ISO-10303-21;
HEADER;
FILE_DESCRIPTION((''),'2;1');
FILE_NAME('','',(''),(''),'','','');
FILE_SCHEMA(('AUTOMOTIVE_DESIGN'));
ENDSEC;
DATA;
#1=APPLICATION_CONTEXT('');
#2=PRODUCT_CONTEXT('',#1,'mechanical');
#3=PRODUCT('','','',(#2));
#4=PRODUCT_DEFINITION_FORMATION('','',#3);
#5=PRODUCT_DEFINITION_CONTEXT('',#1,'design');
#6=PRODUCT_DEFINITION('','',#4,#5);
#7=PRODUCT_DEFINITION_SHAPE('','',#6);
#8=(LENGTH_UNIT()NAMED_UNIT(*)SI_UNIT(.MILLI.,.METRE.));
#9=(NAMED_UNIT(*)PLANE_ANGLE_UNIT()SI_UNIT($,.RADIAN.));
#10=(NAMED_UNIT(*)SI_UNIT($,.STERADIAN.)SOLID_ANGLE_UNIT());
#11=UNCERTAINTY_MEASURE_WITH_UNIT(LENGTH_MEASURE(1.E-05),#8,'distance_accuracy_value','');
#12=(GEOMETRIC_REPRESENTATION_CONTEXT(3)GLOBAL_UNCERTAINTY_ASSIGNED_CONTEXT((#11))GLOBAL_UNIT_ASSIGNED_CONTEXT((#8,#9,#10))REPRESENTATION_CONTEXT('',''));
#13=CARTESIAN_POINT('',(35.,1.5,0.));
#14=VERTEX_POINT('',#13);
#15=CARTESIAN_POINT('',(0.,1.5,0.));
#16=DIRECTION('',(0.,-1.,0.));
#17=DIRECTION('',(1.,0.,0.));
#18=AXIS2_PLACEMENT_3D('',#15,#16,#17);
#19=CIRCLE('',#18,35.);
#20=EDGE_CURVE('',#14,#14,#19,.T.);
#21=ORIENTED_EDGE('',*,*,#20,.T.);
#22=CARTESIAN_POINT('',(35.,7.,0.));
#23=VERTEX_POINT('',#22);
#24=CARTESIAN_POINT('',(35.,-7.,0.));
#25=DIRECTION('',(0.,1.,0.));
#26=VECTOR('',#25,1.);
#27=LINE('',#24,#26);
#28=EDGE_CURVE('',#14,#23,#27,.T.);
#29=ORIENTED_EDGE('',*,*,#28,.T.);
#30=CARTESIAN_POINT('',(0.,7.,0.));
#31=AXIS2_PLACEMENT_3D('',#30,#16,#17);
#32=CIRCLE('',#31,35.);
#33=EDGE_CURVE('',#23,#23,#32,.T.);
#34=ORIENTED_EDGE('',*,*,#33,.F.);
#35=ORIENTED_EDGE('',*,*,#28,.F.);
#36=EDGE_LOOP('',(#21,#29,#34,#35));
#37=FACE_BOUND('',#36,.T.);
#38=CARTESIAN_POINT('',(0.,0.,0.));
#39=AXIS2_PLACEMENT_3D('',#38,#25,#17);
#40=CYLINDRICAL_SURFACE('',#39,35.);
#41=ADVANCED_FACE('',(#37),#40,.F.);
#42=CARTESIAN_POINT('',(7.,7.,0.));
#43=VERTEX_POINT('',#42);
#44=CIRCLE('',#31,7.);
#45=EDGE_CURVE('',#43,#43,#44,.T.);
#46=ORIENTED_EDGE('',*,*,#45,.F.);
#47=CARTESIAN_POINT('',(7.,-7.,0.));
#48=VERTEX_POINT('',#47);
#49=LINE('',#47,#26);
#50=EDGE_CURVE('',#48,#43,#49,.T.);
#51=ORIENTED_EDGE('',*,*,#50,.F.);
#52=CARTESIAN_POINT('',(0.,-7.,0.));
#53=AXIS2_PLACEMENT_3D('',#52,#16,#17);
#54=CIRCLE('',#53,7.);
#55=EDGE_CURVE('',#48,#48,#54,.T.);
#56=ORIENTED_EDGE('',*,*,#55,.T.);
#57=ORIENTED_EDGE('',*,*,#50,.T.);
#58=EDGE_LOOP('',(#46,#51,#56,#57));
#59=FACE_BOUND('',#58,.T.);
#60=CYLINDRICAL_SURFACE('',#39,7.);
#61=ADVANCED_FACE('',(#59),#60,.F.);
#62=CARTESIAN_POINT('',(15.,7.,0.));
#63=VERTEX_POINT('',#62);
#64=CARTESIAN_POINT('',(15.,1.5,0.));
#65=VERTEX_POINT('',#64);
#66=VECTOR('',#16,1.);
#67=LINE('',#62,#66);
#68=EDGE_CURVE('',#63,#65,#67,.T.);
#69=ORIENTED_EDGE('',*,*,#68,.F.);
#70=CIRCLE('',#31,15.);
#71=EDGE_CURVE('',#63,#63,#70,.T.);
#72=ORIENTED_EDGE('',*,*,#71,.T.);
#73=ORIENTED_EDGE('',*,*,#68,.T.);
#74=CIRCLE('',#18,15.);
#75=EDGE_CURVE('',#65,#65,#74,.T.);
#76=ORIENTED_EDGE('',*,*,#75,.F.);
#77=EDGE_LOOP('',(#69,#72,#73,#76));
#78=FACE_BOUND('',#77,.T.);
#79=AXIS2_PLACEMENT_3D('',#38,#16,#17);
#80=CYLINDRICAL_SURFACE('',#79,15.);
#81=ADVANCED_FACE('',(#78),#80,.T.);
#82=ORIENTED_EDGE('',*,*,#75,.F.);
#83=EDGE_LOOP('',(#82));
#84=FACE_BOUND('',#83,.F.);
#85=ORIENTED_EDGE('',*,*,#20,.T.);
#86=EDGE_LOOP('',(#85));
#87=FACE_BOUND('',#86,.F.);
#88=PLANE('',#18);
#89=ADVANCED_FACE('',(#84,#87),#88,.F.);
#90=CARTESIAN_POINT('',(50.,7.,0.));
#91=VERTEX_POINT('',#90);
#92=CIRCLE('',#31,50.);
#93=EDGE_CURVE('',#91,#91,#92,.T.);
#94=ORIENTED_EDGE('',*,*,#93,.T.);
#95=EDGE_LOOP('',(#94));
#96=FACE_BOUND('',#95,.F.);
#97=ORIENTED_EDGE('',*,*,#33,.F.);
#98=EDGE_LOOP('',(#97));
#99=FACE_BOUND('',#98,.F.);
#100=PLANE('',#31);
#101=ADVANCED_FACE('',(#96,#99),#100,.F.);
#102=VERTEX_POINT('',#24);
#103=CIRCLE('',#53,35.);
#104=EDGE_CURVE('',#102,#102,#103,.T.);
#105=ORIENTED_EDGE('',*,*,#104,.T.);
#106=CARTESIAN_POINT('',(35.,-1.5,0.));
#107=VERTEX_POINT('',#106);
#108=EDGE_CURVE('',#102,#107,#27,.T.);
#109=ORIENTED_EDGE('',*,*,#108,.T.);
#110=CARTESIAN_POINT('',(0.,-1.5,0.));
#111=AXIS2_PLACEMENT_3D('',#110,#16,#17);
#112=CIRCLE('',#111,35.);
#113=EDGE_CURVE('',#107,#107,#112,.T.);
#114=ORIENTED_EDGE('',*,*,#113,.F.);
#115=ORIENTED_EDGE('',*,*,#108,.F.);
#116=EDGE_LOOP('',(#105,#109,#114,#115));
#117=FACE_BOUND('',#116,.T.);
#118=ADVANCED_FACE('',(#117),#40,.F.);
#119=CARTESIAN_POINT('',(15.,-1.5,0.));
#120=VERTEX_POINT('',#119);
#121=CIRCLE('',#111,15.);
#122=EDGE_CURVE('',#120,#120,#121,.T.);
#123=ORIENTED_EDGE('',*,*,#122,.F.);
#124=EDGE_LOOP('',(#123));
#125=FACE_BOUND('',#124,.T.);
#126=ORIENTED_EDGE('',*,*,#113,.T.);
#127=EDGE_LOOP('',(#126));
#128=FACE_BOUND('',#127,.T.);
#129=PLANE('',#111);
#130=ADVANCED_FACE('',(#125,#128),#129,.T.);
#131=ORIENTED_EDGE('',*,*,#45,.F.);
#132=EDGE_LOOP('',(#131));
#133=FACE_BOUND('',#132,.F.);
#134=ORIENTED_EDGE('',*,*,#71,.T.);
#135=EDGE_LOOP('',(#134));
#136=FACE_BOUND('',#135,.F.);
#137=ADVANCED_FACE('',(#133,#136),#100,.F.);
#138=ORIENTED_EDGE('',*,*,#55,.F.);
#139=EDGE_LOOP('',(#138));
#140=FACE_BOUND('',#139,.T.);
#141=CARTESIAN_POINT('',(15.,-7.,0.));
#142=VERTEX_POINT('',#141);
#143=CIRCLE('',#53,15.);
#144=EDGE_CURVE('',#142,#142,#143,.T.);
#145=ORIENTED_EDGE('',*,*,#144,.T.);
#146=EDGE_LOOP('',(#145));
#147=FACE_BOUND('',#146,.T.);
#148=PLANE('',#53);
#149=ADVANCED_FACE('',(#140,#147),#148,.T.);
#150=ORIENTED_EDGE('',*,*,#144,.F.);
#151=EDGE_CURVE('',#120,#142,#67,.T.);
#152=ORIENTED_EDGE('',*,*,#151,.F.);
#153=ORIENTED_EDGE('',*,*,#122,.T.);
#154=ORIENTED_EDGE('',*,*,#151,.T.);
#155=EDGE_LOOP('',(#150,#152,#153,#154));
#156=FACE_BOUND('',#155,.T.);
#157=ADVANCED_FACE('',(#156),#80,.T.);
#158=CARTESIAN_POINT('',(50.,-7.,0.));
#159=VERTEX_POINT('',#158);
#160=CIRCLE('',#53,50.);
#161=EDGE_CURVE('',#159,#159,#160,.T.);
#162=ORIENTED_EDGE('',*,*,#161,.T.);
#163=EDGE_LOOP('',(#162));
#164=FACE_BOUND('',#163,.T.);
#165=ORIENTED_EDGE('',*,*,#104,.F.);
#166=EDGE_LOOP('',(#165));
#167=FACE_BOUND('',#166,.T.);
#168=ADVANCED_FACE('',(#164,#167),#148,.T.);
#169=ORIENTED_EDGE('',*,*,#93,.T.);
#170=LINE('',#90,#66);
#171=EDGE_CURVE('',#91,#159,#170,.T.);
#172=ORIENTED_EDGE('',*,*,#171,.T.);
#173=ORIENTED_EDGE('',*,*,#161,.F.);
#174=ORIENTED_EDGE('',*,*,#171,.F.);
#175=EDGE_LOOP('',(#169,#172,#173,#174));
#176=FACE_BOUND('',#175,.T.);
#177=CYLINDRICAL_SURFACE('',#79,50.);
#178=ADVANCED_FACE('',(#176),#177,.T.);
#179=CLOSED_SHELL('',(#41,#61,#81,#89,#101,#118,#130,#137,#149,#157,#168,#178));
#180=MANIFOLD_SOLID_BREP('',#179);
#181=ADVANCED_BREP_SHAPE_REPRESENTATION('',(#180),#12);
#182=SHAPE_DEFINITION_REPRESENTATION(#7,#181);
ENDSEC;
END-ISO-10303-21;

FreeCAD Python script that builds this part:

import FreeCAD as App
import Part
import Sketcher
from FreeCAD import Vector

doc = App.newDocument("Part")
body = doc.addObject("PartDesign::Body", "Body")

# Sketch on XZ plane
sketch1 = body.newObject("Sketcher::SketchObject", "Sketch")
sketch1.AttachmentSupport = (doc.getObject("XZ_Plane"), [""])
sketch1.MapMode = "FlatFace"
sketch1.addGeometry([
    Part.Circle(Vector(0, 0, 0), Vector(0, 0, 1), 50),
    Part.Circle(Vector(0, 0, 0), Vector(0, 0, 1), 35),
], False)
sketch1.addConstraint([
    Sketcher.Constraint("Coincident", 0, 3, -1, 1),
    Sketcher.Constraint("Coincident", 1, 3, -1, 1),
    Sketcher.Constraint("Diameter", 0, 100.0),
    Sketcher.Constraint("Diameter", 1, 70.0),
])
pad1 = body.newObject("PartDesign::Pad", "Pad")
pad1.Profile = sketch1
pad1.Length = 14
pad1.Midplane = True

# Sketch on XZ plane
sketch2 = body.newObject("Sketcher::SketchObject", "Sketch001")
sketch2.AttachmentSupport = (doc.getObject("XZ_Plane"), [""])
sketch2.MapMode = "FlatFace"
sketch2.addGeometry([
    Part.Circle(Vector(0, 0, 0), Vector(0, 0, 1), 35),
    Part.Circle(Vector(0, 0, 0), Vector(0, 0, 1), 15),
], False)
sketch2.addConstraint([
    Sketcher.Constraint("Coincident", 0, 3, -1, 1),
    Sketcher.Constraint("Coincident", 1, 3, -1, 1),
    Sketcher.Constraint("Diameter", 0, 70.0),
    Sketcher.Constraint("Diameter", 1, 30.0),
])
pad2 = body.newObject("PartDesign::Pad", "Pad001")
pad2.Profile = sketch2
pad2.Length = 3
pad2.Midplane = True

# Sketch on XZ plane
sketch3 = body.newObject("Sketcher::SketchObject", "Sketch002")
sketch3.AttachmentSupport = (doc.getObject("XZ_Plane"), [""])
sketch3.MapMode = "FlatFace"
sketch3.addGeometry([
    Part.Circle(Vector(0, 0, 0), Vector(0, 0, 1), 15),
    Part.Circle(Vector(0, 0, 0), Vector(0, 0, 1), 7),
], False)
sketch3.addConstraint([
    Sketcher.Constraint("Coincident", 0, 3, -1, 1),
    Sketcher.Constraint("Coincident", 1, 3, -1, 1),
    Sketcher.Constraint("Diameter", 0, 30.0),
    Sketcher.Constraint("Diameter", 1, 14.0),
])
pad3 = body.newObject("PartDesign::Pad", "Pad002")
pad3.Profile = sketch3
pad3.Length = 14
pad3.Midplane = True

doc.recompute()
